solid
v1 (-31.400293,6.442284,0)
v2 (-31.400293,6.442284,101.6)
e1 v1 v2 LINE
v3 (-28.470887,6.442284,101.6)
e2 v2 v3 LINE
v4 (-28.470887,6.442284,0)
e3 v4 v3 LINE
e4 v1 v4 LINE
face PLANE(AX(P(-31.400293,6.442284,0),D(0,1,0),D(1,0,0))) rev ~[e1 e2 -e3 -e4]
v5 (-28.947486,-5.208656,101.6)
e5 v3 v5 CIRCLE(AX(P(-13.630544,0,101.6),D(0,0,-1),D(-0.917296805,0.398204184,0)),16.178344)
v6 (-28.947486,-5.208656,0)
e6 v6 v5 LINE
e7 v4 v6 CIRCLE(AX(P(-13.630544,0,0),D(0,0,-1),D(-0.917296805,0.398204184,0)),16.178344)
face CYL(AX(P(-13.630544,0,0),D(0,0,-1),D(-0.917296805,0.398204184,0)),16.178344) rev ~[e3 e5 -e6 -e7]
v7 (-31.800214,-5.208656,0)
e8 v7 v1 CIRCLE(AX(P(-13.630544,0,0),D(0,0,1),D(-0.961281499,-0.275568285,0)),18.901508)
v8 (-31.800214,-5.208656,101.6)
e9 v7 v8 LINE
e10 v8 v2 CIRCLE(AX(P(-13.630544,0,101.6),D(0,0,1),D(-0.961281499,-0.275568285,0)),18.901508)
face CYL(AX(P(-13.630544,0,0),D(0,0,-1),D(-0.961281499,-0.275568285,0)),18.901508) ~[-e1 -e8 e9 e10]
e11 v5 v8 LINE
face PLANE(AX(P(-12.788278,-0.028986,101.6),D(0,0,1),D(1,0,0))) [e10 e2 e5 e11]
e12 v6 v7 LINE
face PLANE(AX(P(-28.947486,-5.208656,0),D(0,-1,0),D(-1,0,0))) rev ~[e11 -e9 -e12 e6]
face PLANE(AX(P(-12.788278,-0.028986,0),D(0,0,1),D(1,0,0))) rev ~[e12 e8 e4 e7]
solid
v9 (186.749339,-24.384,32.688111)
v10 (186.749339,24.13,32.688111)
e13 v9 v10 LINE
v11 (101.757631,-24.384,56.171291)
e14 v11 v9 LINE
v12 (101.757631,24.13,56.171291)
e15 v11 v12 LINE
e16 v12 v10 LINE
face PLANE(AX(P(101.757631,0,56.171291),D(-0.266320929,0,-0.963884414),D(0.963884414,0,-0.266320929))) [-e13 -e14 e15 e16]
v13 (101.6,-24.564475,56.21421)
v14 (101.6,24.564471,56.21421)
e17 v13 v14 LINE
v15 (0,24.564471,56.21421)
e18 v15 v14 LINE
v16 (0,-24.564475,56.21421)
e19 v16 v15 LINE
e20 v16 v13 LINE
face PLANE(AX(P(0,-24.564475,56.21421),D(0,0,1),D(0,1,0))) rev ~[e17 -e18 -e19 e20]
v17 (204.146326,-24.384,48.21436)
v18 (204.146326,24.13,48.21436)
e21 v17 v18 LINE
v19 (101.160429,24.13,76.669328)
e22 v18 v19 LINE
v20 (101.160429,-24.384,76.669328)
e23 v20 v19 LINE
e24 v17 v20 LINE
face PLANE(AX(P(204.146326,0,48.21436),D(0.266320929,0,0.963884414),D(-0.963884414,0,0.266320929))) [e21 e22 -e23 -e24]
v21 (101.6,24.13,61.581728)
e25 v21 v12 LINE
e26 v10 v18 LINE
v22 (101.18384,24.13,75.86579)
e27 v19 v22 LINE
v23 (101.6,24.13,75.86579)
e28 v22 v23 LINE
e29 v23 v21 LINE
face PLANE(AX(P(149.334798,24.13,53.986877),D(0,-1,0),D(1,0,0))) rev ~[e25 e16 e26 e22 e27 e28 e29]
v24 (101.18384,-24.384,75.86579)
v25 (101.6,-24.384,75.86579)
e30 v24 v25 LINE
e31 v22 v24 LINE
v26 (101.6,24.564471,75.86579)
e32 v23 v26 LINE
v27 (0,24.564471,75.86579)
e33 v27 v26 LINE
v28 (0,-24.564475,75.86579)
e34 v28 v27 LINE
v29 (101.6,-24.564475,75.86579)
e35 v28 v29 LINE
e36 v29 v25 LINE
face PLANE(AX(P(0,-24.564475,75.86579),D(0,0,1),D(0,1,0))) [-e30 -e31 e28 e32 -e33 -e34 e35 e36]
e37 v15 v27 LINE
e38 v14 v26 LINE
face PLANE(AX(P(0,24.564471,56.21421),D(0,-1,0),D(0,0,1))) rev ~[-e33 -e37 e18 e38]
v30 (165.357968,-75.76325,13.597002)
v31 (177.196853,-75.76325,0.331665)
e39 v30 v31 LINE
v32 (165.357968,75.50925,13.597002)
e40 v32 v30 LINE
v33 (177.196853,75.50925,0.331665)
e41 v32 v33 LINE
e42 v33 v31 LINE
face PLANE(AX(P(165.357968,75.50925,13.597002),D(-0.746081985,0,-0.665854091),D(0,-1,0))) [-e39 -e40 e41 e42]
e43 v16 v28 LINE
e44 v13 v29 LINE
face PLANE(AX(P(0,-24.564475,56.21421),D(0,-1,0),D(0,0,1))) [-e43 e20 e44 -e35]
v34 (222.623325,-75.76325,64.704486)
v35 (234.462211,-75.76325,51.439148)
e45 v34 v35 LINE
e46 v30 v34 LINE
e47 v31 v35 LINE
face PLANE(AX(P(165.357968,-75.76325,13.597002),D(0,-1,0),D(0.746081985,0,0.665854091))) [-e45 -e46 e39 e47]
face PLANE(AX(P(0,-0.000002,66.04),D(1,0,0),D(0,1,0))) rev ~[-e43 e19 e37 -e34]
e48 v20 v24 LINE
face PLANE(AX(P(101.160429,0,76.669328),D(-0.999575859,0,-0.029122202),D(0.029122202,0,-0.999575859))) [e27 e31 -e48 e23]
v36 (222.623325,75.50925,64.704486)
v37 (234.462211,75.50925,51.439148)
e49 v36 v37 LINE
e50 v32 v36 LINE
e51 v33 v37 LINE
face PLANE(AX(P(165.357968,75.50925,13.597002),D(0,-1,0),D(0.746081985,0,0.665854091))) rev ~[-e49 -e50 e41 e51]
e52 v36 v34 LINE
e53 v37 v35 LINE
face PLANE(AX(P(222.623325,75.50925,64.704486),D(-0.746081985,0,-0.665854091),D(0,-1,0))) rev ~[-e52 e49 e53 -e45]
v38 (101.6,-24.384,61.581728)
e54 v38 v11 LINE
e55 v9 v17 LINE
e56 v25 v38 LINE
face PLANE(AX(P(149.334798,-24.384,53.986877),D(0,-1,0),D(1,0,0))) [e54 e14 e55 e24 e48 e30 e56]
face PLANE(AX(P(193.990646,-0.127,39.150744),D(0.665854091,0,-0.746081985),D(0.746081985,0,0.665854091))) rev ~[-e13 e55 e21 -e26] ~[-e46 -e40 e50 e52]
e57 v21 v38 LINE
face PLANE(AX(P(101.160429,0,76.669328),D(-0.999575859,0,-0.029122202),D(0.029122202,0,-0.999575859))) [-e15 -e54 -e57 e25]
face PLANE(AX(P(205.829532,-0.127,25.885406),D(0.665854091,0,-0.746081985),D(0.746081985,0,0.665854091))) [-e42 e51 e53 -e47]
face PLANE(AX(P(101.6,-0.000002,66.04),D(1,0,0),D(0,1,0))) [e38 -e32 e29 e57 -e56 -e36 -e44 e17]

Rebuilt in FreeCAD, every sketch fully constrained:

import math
import FreeCAD as App
import Part
import Sketcher
Q = App.Units.Quantity

doc = App.newDocument("Part")
body = doc.addObject("PartDesign::Body", "Body")

# Sketch on XY plane
sketch1 = body.newObject("Sketcher::SketchObject", "Sketch")
sketch1.AttachmentSupport = (doc.getObject("XY_Plane"), [""])
sketch1.MapMode = "FlatFace"
sketch1.addGeometry(Part.ArcOfCircle(Part.Circle(App.Vector(-13.630544, 0, 0), App.Vector(0, 0, 1), 16.178344), math.radians(-161.218964), math.radians(156.534039)), False)
sketch1.addGeometry(Part.LineSegment(App.Vector(-28.947486, -5.208656, 0), App.Vector(-31.800214, -5.208656, 0)), False)
sketch1.addGeometry(Part.ArcOfCircle(Part.Circle(App.Vector(-13.630544, 0, 0), App.Vector(0, 0, 1), 18.901508), math.radians(-164.004117), math.radians(160.072281)), False)
sketch1.addGeometry(Part.LineSegment(App.Vector(-31.400293, 6.442284, 0), App.Vector(-28.470887, 6.442284, 0)), False)
sketch1.addConstraint(Sketcher.Constraint("Coincident", 0, 1, 1, 1))
sketch1.addConstraint(Sketcher.Constraint("Coincident", 1, 2, 2, 1))
sketch1.addConstraint(Sketcher.Constraint("Coincident", 2, 2, 3, 1))
sketch1.addConstraint(Sketcher.Constraint("Coincident", 3, 2, 0, 2))
sketch1.addConstraint(Sketcher.Constraint("Horizontal", 1))
sketch1.addConstraint(Sketcher.Constraint("Horizontal", 3))
sketch1.addConstraint(Sketcher.Constraint("Coincident", 2, 3, 0, 3))
sketch1.addConstraint(Sketcher.Constraint("PointOnObject", 0, 3, -1))
sketch1.addConstraint(Sketcher.Constraint("Radius", 0, 16.178344))
sketch1.addConstraint(Sketcher.Constraint("Radius", 2, 18.901508))
sketch1.addConstraint(Sketcher.Constraint("DistanceX", 0, 1, 3, 2, 0.476599))
sketch1.addConstraint(Sketcher.Constraint("DistanceX", 1, 2, 1, 1, 2.852727))
sketch1.addConstraint(Sketcher.Constraint("DistanceX", 0, 3, -1, 1, 13.630544))
pad1 = body.newObject("PartDesign::Pad", "Pad")
pad1.Profile = sketch1
pad1.Length = Q("4 in")
body2 = doc.addObject("PartDesign::Body", "Body001")

# Sketch on YZ plane
sketch2 = body2.newObject("Sketcher::SketchObject", "Sketch001")
sketch2.AttachmentSupport = (doc.getObject("YZ_Plane001"), [""])
sketch2.MapMode = "FlatFace"
sketch2.addGeometry(Part.LineSegment(App.Vector(-24.564475, 75.86579, 0), App.Vector(-24.564475, 56.21421, 0)), False)
sketch2.addGeometry(Part.LineSegment(App.Vector(-24.564475, 56.21421, 0), App.Vector(24.564471, 56.21421, 0)), False)
sketch2.addGeometry(Part.LineSegment(App.Vector(24.564471, 56.21421, 0), App.Vector(24.564471, 75.86579, 0)), False)
sketch2.addGeometry(Part.LineSegment(App.Vector(24.564471, 75.86579, 0), App.Vector(-24.564475, 75.86579, 0)), False)
sketch2.addConstraint(Sketcher.Constraint("Coincident", 0, 2, 1, 1))
sketch2.addConstraint(Sketcher.Constraint("Coincident", 1, 2, 2, 1))
sketch2.addConstraint(Sketcher.Constraint("Coincident", 2, 2, 3, 1))
sketch2.addConstraint(Sketcher.Constraint("Coincident", 3, 2, 0, 1))
sketch2.addConstraint(Sketcher.Constraint("Vertical", 0))
sketch2.addConstraint(Sketcher.Constraint("Horizontal", 1))
sketch2.addConstraint(Sketcher.Constraint("Vertical", 2))
sketch2.addConstraint(Sketcher.Constraint("Horizontal", 3))
sketch2.addConstraint(Sketcher.Constraint("DistanceY", 0, 2, 0, 1, 19.651581))
sketch2.addConstraint(Sketcher.Constraint("DistanceX", 1, 1, 1, 2, 49.128946))
sketch2.addConstraint(Sketcher.Constraint("DistanceY", -1, 1, 0, 2, 56.21421))
sketch2.addConstraint(Sketcher.Constraint("DistanceX", -1, 1, 1, 2, 24.564471))
pad2 = body2.newObject("PartDesign::Pad", "Pad001")
pad2.Profile = sketch2
pad2.Length = Q("4 in")

# Sketch on XZ plane
sketch3 = body2.newObject("Sketcher::SketchObject", "Sketch002")
sketch3.AttachmentSupport = (doc.getObject("XZ_Plane001"), [""])
sketch3.MapMode = "FlatFace"
sketch3.addGeometry(Part.LineSegment(App.Vector(101.160429, 76.669328, 0), App.Vector(101.757631, 56.171291, 0)), False)
sketch3.addGeometry(Part.LineSegment(App.Vector(101.757631, 56.171291, 0), App.Vector(186.749339, 32.688111, 0)), False)
sketch3.addGeometry(Part.LineSegment(App.Vector(186.749339, 32.688111, 0), App.Vector(204.146326, 48.21436, 0)), False)
sketch3.addGeometry(Part.LineSegment(App.Vector(204.146326, 48.21436, 0), App.Vector(101.160429, 76.669328, 0)), False)
sketch3.addConstraint(Sketcher.Constraint("Coincident", 0, 2, 1, 1))
sketch3.addConstraint(Sketcher.Constraint("Coincident", 1, 2, 2, 1))
sketch3.addConstraint(Sketcher.Constraint("Coincident", 2, 2, 3, 1))
sketch3.addConstraint(Sketcher.Constraint("Coincident", 3, 2, 0, 1))
sketch3.addConstraint(Sketcher.Constraint("Parallel", 1, 3))
sketch3.addConstraint(Sketcher.Constraint("DistanceX", 3, 2, 0, 2, 0.597201))
sketch3.addConstraint(Sketcher.Constraint("DistanceX", -1, 1, 0, 2, 101.757631))
sketch3.addConstraint(Sketcher.Constraint("DistanceY", -1, 1, 0, 2, 56.171291))
sketch3.addConstraint(Sketcher.Constraint("DistanceX", -1, 1, 1, 2, 186.749339))
sketch3.addConstraint(Sketcher.Constraint("DistanceY", -1, 1, 1, 2, 32.688111))
sketch3.addConstraint(Sketcher.Constraint("DistanceY", -1, 1, 2, 2, 48.21436))
sketch3.addConstraint(Sketcher.Constraint("Distance", 0, 20.506735))
pad3 = body2.newObject("PartDesign::Pad", "Pad002")
pad3.Profile = sketch3
pad3.Type = "TwoLengths"
pad3.Length = Q("0.96 in")
pad3.Length2 = Q("0.95 in")

# Sketch on an angled plane
sketch4 = body2.newObject("Sketcher::SketchObject", "Sketch003")
sketch4.Placement = App.Placement(App.Vector(66.558642, 0, -74.578207), App.Rotation(App.Vector(0.746081985, 0, 0.665854091), App.Vector(0, -0.999999999, 0), App.Vector(0.665854091, 0, -0.746081985), "ZXY"))
sketch4.addGeometry(Part.LineSegment(App.Vector(132.42422, 75.76325, 0), App.Vector(132.42422, -75.50925, 0)), False)
sketch4.addGeometry(Part.LineSegment(App.Vector(132.42422, -75.50925, 0), App.Vector(209.178999, -75.50925, 0)), False)
sketch4.addGeometry(Part.LineSegment(App.Vector(209.178999, -75.50925, 0), App.Vector(209.178999, 75.76325, 0)), False)
sketch4.addGeometry(Part.LineSegment(App.Vector(209.178999, 75.76325, 0), App.Vector(132.42422, 75.76325, 0)), False)
sketch4.addConstraint(Sketcher.Constraint("Coincident", 0, 2, 1, 1))
sketch4.addConstraint(Sketcher.Constraint("Coincident", 1, 2, 2, 1))
sketch4.addConstraint(Sketcher.Constraint("Coincident", 2, 2, 3, 1))
sketch4.addConstraint(Sketcher.Constraint("Coincident", 3, 2, 0, 1))
sketch4.addConstraint(Sketcher.Constraint("Vertical", 0))
sketch4.addConstraint(Sketcher.Constraint("Horizontal", 1))
sketch4.addConstraint(Sketcher.Constraint("Vertical", 2))
sketch4.addConstraint(Sketcher.Constraint("Horizontal", 3))
sketch4.addConstraint(Sketcher.Constraint("DistanceY", 0, 2, 0, 1, 151.2725))
sketch4.addConstraint(Sketcher.Constraint("DistanceX", 1, 1, 1, 2, 76.754779))
sketch4.addConstraint(Sketcher.Constraint("DistanceX", -1, 1, 1, 2, 209.178999))
sketch4.addConstraint(Sketcher.Constraint("DistanceY", 0, 2, -1, 1, 75.50925))
pad4 = body2.newObject("PartDesign::Pad", "Pad003")
pad4.Profile = sketch4
pad4.Length = Q("0.7 in")

doc.recompute()
